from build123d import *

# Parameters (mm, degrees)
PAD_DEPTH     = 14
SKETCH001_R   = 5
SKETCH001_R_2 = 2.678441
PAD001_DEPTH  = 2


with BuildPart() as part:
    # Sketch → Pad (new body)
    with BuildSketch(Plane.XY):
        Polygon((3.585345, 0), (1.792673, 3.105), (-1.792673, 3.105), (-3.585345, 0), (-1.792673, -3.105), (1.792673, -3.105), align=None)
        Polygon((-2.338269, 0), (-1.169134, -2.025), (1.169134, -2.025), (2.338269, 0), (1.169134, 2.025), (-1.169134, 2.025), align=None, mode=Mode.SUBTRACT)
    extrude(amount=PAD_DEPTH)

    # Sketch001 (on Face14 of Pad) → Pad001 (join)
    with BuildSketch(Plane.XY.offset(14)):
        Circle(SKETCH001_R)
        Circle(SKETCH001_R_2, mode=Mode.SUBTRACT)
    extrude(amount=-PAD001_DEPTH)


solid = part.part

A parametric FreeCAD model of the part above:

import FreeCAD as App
import Part
import Sketcher
Q = App.Units.Quantity

doc = App.newDocument("Part")
body = doc.addObject("PartDesign::Body", "Body")

# Sketch on XY plane
sketch1 = body.newObject("Sketcher::SketchObject", "Sketch")
sketch1.AttachmentSupport = (doc.getObject("XY_Plane"), [""])
sketch1.MapMode = "FlatFace"
sketch1.addGeometry(Part.LineSegment(App.Vector(3.585345, 0, 0), App.Vector(1.792673, 3.105, 0)), False)
sketch1.addGeometry(Part.LineSegment(App.Vector(1.792673, 3.105, 0), App.Vector(-1.792673, 3.105, 0)), False)
sketch1.addGeometry(Part.LineSegment(App.Vector(-1.792673, 3.105, 0), App.Vector(-3.585345, 0, 0)), False)
sketch1.addGeometry(Part.LineSegment(App.Vector(-3.585345, 0, 0), App.Vector(-1.792673, -3.105, 0)), False)
sketch1.addGeometry(Part.LineSegment(App.Vector(-1.792673, -3.105, 0), App.Vector(1.792673, -3.105, 0)), False)
sketch1.addGeometry(Part.LineSegment(App.Vector(1.792673, -3.105, 0), App.Vector(3.585345, 0, 0)), False)
sketch1.addGeometry(Part.LineSegment(App.Vector(-1.169134, -2.025, 0), App.Vector(-2.338269, 0, 0)), False)
sketch1.addGeometry(Part.LineSegment(App.Vector(-2.338269, 0, 0), App.Vector(-1.169134, 2.025, 0)), False)
sketch1.addGeometry(Part.LineSegment(App.Vector(-1.169134, 2.025, 0), App.Vector(1.169134, 2.025, 0)), False)
sketch1.addGeometry(Part.LineSegment(App.Vector(1.169134, 2.025, 0), App.Vector(2.338269, 0, 0)), False)
sketch1.addGeometry(Part.LineSegment(App.Vector(2.338269, 0, 0), App.Vector(1.169134, -2.025, 0)), False)
sketch1.addGeometry(Part.LineSegment(App.Vector(1.169134, -2.025, 0), App.Vector(-1.169134, -2.025, 0)), False)
sketch1.addConstraint(Sketcher.Constraint("Coincident", 0, 2, 1, 1))
sketch1.addConstraint(Sketcher.Constraint("Coincident", 1, 2, 2, 1))
sketch1.addConstraint(Sketcher.Constraint("Coincident", 2, 2, 3, 1))
sketch1.addConstraint(Sketcher.Constraint("Coincident", 3, 2, 4, 1))
sketch1.addConstraint(Sketcher.Constraint("Coincident", 4, 2, 5, 1))
sketch1.addConstraint(Sketcher.Constraint("Coincident", 5, 2, 0, 1))
sketch1.addConstraint(Sketcher.Constraint("Coincident", 6, 2, 7, 1))
sketch1.addConstraint(Sketcher.Constraint("Coincident", 7, 2, 8, 1))
sketch1.addConstraint(Sketcher.Constraint("Coincident", 8, 2, 9, 1))
sketch1.addConstraint(Sketcher.Constraint("Coincident", 9, 2, 10, 1))
sketch1.addConstraint(Sketcher.Constraint("Coincident", 10, 2, 11, 1))
sketch1.addConstraint(Sketcher.Constraint("Coincident", 11, 2, 6, 1))
sketch1.addConstraint(Sketcher.Constraint("Horizontal", 1))
sketch1.addConstraint(Sketcher.Constraint("Horizontal", 4))
sketch1.addConstraint(Sketcher.Constraint("Horizontal", 8))
sketch1.addConstraint(Sketcher.Constraint("Horizontal", 11))
sketch1.addConstraint(Sketcher.Constraint("Symmetric", 0, 2, 3, 2, -1, 1))
sketch1.addConstraint(Sketcher.Constraint("Symmetric", 2, 2, 5, 2, -1, 1))
sketch1.addConstraint(Sketcher.Constraint("Symmetric", 6, 2, 9, 2, -1, 1))
sketch1.addConstraint(Sketcher.Constraint("Symmetric", 7, 2, 10, 2, -1, 1))
sketch1.addConstraint(Sketcher.Constraint("PointOnObject", 2, 2, -1))
sketch1.addConstraint(Sketcher.Constraint("PointOnObject", 6, 2, -1))
sketch1.addConstraint(Sketcher.Constraint("Parallel", 2, 5))
sketch1.addConstraint(Sketcher.Constraint("Parallel", 3, 6))
sketch1.addConstraint(Sketcher.Constraint("Parallel", 5, 7))
sketch1.addConstraint(Sketcher.Constraint("Parallel", 6, 9))
sketch1.addConstraint(Sketcher.Constraint("Vertical", 1, 2, 3, 2))
sketch1.addConstraint(Sketcher.Constraint("Angle", 0, Q("119.999992 deg")))
sketch1.addConstraint(Sketcher.Constraint("DistanceY", 3, 2, 1, 2, 6.21))
sketch1.addConstraint(Sketcher.Constraint("DistanceY", 7, 2, 1, 2, 1.08))
sketch1.addConstraint(Sketcher.Constraint("DistanceX", 1, 2, 1, 1, 3.585346))
sketch1.addConstraint(Sketcher.Constraint("DistanceX", 8, 1, 8, 2, 2.338268))
pad1 = body.newObject("PartDesign::Pad", "Pad")
pad1.Profile = sketch1
pad1.Length = 14

# Sketch on XY plane
sketch2 = body.newObject("Sketcher::SketchObject", "Sketch001")
sketch2.AttachmentSupport = (doc.getObject("XY_Plane"), [""])
sketch2.MapMode = "FlatFace"
sketch2.AttachmentOffset = App.Placement(App.Vector(0, 0, 14), App.Rotation())
sketch2.addGeometry(Part.Circle(App.Vector(0, 0, 0), App.Vector(0, 0, 1), 5), False)
sketch2.addGeometry(Part.Circle(App.Vector(0, 0, 0), App.Vector(0, 0, 1), 2.678441), False)
sketch2.addConstraint(Sketcher.Constraint("Coincident", 0, 3, -1, 1))
sketch2.addConstraint(Sketcher.Constraint("Coincident", 1, 3, -1, 1))
sketch2.addConstraint(Sketcher.Constraint("Diameter", 0, 10.0))
sketch2.addConstraint(Sketcher.Constraint("Diameter", 1, 5.356882))
pad2 = body.newObject("PartDesign::Pad", "Pad001")
pad2.Profile = sketch2
pad2.Length = 2
pad2.Reversed = True

doc.recompute()
